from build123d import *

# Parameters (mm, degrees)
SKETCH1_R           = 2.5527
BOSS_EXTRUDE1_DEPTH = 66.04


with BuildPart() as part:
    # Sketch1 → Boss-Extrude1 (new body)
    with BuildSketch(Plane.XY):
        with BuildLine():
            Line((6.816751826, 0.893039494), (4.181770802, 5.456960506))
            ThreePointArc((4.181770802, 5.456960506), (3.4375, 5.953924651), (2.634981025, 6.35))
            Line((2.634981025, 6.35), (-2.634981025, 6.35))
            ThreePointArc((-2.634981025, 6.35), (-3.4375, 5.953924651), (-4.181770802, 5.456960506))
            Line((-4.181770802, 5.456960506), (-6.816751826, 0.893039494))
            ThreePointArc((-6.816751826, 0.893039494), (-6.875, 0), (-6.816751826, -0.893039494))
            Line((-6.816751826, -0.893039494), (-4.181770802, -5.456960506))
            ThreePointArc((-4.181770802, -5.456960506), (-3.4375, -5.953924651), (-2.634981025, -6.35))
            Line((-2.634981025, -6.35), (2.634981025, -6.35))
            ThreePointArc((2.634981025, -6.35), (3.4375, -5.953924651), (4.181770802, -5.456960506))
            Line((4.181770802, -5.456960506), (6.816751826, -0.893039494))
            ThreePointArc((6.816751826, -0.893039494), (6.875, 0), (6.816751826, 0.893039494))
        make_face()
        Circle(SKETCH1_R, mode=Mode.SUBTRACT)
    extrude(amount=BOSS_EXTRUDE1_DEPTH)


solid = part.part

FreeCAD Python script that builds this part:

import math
import FreeCAD as App
import Part
import Sketcher
Q = App.Units.Quantity

doc = App.newDocument("Part")
body = doc.addObject("PartDesign::Body", "Body")

# Sketch on XY plane
sketch1 = body.newObject("Sketcher::SketchObject", "Sketch")
sketch1.AttachmentSupport = (doc.getObject("XY_Plane"), [""])
sketch1.MapMode = "FlatFace"
sketch1.addGeometry([
    Part.LineSegment(App.Vector(6.8, 0.9, 0), App.Vector(4.2, 5.5, 0)),  # 0
    Part.ArcOfCircle(Part.Circle(App.Vector(0, 0, 0), App.Vector(0, 0, 1), 6.9), math.radians(52.54), math.radians(67.46)),  # 1
    Part.LineSegment(App.Vector(2.6, 6.3, 0), App.Vector(-2.6, 6.3, 0)),  # 2
    Part.ArcOfCircle(Part.Circle(App.Vector(0, 0, 0), App.Vector(0, 0, 1), 6.9), math.radians(112.54), math.radians(127.46)),  # 3
    Part.LineSegment(App.Vector(-4.2, 5.5, 0), App.Vector(-6.8, 0.9, 0)),  # 4
    Part.ArcOfCircle(Part.Circle(App.Vector(0, 0, 0), App.Vector(0, 0, 1), 6.9), math.radians(172.54), math.radians(187.46)),  # 5
    Part.LineSegment(App.Vector(-6.8, -0.9, 0), App.Vector(-4.2, -5.5, 0)),  # 6
    Part.ArcOfCircle(Part.Circle(App.Vector(0, 0, 0), App.Vector(0, 0, 1), 6.9), math.radians(-127.46), math.radians(-112.54)),  # 7
    Part.LineSegment(App.Vector(-2.6, -6.3, 0), App.Vector(2.6, -6.3, 0)),  # 8
    Part.ArcOfCircle(Part.Circle(App.Vector(0, 0, 0), App.Vector(0, 0, 1), 6.9), math.radians(-67.46), math.radians(-52.54)),  # 9
    Part.LineSegment(App.Vector(4.2, -5.5, 0), App.Vector(6.8, -0.9, 0)),  # 10
    Part.ArcOfCircle(Part.Circle(App.Vector(0, 0, 0), App.Vector(0, 0, 1), 6.9), math.radians(-7.46), math.radians(7.46)),  # 11
    Part.Circle(App.Vector(0, 0, 0), App.Vector(0, 0, 1), 2.6),  # 12
], False)
sketch1.addConstraint([
    Sketcher.Constraint("Coincident", 0, 2, 1, 1),
    Sketcher.Constraint("Coincident", 1, 2, 2, 1),
    Sketcher.Constraint("Coincident", 2, 2, 3, 1),
    Sketcher.Constraint("Coincident", 3, 2, 4, 1),
    Sketcher.Constraint("Coincident", 4, 2, 5, 1),
    Sketcher.Constraint("Coincident", 5, 2, 6, 1),
    Sketcher.Constraint("Coincident", 6, 2, 7, 1),
    Sketcher.Constraint("Coincident", 7, 2, 8, 1),
    Sketcher.Constraint("Coincident", 8, 2, 9, 1),
    Sketcher.Constraint("Coincident", 9, 2, 10, 1),
    Sketcher.Constraint("Coincident", 10, 2, 11, 1),
    Sketcher.Constraint("Coincident", 11, 2, 0, 1),
    Sketcher.Constraint("Horizontal", 2),
    Sketcher.Constraint("Horizontal", 8),
    Sketcher.Constraint("Coincident", 1, 3, -1, 1),
    Sketcher.Constraint("Coincident", 3, 3, -1, 1),
    Sketcher.Constraint("Coincident", 5, 3, -1, 1),
    Sketcher.Constraint("Coincident", 7, 3, -1, 1),
    Sketcher.Constraint("Coincident", 9, 3, -1, 1),
    Sketcher.Constraint("Coincident", 11, 3, -1, 1),
    Sketcher.Constraint("Coincident", 12, 3, -1, 1),
    Sketcher.Constraint("Equal", 1, 3),
    Sketcher.Constraint("Equal", 3, 5),
    Sketcher.Constraint("Equal", 5, 7),
    Sketcher.Constraint("Equal", 7, 9),
    Sketcher.Constraint("Equal", 9, 11),
    Sketcher.Constraint("Parallel", 0, 6),
    Sketcher.Constraint("Parallel", 4, 10),
    Sketcher.Constraint("Horizontal", 0, 2, 3, 2),
    Sketcher.Constraint("Horizontal", 6, 2, 9, 2),
    Sketcher.Constraint("Horizontal", 5, 2, 10, 2),
    Sketcher.Constraint("Vertical", 4, 2, 5, 2),
    Sketcher.Constraint("Vertical", 2, 2, 7, 2),
    Sketcher.Constraint("Diameter", 12, Q("0.201 in")),
    Sketcher.Constraint("Angle", 0, Q("120 deg")),
    Sketcher.Constraint("DistanceY", -1, 1, 1, 2, Q("0.25 in")),
    Sketcher.Constraint("Radius", 1, 6.875),
    Sketcher.Constraint("DistanceY", 5, 2, 3, 2, Q("0.25 in")),
])
pad1 = body.newObject("PartDesign::Pad", "Pad")
pad1.Profile = sketch1
pad1.Length = Q("2.6 in")

doc.recompute()
